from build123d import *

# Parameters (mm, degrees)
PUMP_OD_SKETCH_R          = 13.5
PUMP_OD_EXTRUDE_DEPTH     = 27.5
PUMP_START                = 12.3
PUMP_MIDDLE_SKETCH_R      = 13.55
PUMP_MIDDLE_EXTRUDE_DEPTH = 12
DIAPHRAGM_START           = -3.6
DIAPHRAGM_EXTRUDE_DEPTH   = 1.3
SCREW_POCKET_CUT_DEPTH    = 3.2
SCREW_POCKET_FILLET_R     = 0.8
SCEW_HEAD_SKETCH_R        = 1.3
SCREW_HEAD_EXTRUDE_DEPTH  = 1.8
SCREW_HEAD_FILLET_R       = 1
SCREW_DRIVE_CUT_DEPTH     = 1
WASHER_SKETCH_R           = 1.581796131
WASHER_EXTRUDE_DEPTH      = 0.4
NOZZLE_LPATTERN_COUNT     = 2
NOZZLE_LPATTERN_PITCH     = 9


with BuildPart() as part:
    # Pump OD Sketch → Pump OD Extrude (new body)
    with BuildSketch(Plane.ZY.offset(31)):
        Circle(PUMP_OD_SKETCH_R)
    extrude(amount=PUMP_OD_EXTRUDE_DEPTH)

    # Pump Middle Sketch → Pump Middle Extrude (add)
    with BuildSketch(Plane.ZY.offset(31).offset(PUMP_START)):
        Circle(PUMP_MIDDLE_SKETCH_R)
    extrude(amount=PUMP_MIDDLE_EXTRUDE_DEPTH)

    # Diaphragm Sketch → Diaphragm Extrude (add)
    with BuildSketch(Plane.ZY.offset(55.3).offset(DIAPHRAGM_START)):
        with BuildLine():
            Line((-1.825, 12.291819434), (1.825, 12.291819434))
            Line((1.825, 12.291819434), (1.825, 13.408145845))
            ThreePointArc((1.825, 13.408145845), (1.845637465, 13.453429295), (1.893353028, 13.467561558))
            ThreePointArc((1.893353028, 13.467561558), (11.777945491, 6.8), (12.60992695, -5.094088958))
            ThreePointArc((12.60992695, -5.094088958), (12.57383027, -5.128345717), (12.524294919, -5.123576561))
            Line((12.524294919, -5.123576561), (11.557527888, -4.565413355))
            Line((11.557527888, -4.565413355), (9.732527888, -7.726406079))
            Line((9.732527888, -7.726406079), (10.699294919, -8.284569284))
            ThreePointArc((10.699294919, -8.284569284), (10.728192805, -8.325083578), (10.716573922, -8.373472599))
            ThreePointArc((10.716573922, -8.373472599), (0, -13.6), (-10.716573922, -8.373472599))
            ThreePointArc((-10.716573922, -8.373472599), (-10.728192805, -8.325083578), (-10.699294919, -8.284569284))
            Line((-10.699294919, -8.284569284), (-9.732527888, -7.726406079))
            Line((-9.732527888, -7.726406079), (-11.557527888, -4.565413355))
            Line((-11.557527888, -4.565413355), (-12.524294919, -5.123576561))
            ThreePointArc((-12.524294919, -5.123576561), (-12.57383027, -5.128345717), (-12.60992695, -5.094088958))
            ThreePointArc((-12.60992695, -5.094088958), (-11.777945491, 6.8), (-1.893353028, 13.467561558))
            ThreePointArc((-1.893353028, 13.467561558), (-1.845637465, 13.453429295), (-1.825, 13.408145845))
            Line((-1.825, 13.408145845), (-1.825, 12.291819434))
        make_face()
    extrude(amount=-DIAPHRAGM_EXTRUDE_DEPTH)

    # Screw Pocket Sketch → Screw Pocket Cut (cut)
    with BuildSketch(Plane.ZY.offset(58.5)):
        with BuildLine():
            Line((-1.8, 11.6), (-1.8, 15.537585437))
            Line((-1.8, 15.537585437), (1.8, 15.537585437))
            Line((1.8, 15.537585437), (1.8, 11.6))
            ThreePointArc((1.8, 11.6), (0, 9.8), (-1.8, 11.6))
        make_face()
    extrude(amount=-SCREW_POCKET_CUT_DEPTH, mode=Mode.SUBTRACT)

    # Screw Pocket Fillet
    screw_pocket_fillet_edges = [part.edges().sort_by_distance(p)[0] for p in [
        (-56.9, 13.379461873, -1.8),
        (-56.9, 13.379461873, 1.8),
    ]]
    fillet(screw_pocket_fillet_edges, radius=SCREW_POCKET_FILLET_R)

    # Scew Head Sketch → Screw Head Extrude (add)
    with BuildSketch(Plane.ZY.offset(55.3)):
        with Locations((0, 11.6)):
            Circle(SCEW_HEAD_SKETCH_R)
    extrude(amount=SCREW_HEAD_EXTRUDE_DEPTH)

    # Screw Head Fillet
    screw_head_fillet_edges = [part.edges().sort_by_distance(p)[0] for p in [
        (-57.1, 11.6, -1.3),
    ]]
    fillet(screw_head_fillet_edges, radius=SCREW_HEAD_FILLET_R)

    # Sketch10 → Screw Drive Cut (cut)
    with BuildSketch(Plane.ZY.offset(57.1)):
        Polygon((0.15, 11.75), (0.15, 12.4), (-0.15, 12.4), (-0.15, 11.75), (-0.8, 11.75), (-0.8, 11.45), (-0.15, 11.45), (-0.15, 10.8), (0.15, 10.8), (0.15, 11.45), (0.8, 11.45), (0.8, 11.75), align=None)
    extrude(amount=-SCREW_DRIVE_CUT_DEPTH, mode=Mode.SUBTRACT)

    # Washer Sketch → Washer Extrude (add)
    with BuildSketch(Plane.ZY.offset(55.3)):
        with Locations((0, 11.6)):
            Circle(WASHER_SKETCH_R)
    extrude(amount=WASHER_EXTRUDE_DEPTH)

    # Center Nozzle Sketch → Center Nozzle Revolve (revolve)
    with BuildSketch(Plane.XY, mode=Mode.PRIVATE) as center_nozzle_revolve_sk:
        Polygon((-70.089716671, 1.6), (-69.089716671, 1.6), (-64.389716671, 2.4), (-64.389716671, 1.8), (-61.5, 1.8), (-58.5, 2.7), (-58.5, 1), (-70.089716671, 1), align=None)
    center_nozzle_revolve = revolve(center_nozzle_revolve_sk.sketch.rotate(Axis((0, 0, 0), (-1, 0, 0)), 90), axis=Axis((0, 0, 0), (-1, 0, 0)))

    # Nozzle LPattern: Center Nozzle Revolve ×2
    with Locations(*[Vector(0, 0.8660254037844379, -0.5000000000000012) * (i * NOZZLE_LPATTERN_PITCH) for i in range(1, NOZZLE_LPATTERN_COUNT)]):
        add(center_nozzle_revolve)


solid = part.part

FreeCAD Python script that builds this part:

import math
import FreeCAD as App
import Part
import Sketcher
from FreeCAD import Vector
Q = App.Units.Quantity


def edges_at(feature, points):
    """Names of the edges that pass closest to the given points."""
    edges = feature.Shape.Edges
    near = lambda p: min(range(len(edges)), key=lambda i: edges[i].distToShape(Part.Vertex(*p))[0])
    return sorted({f"Edge{near(p) + 1}" for p in points})


def add_polygon(sketch, points):
    """Adds a closed chain of lines whose ends are joined by coincident constraints."""
    first, n = sketch.GeometryCount, len(points)
    for a, b in zip(points, points[1:] + points[:1]):
        sketch.addGeometry(Part.LineSegment(App.Vector(*a, 0), App.Vector(*b, 0)), False)
    for i in range(n):
        sketch.addConstraint(Sketcher.Constraint("Coincident", first + i, 2, first + (i + 1) % n, 1))

doc = App.newDocument("Part")
body = doc.addObject("PartDesign::Body", "Body")

sketch1 = doc.addObject("Sketcher::SketchObject", "Sketch")
body.addObject(sketch1)
sketch1.AttachmentSupport = (doc.YZ_Plane, [""])
sketch1.MapMode = "FlatFace"
sketch1.AttachmentOffset = App.Placement(Vector(0, 0, -31), App.Rotation())
sketch1.addGeometry(Part.Circle(Vector(0, 0, 0), Vector(0, 0, 1), 13.5), False)
sketch1.addConstraint([
    Sketcher.Constraint("Coincident", 0, 3, -1, 1),
    Sketcher.Constraint("Diameter", 0, Q("27 mm")),
])
pad1 = doc.addObject("PartDesign::Pad", "Pad")
body.addObject(pad1)
pad1.Profile = sketch1
pad1.Length = 27.5
pad1.Reversed = True

sketch2 = doc.addObject("Sketcher::SketchObject", "Sketch001")
body.addObject(sketch2)
sketch2.AttachmentSupport = (doc.YZ_Plane, [""])
sketch2.MapMode = "FlatFace"
sketch2.AttachmentOffset = App.Placement(Vector(0, 0, -43.3), App.Rotation())
sketch2.addGeometry(Part.Circle(Vector(0, 0, 0), Vector(0, 0, 1), 13.55), False)
sketch2.addConstraint([
    Sketcher.Constraint("Coincident", 0, 3, -1, 1),
    Sketcher.Constraint("Diameter", 0, Q("27.1 mm")),
])
pad2 = doc.addObject("PartDesign::Pad", "Pad001")
body.addObject(pad2)
pad2.Profile = sketch2
pad2.Length = 12
pad2.Reversed = True

sketch3 = doc.addObject("Sketcher::SketchObject", "Sketch002")
body.addObject(sketch3)
sketch3.AttachmentSupport = (doc.YZ_Plane, [""])
sketch3.MapMode = "FlatFace"
sketch3.AttachmentOffset = App.Placement(Vector(0, 0, -51.7), App.Rotation())
sketch3.addGeometry([
    Part.LineSegment(Vector(12.291819, 1.825, 0), Vector(12.291819, -1.825, 0)),
    Part.LineSegment(Vector(12.291819, -1.825, 0), Vector(13.408146, -1.825, 0)),
    Part.ArcOfCircle(Part.Circle(Vector(13.408146, -1.885, 0), Vector(0, 0, 1), 0.06), math.radians(-8.002548), math.radians(90)),
    Part.ArcOfCircle(Part.Circle(Vector(0, 0, 0), Vector(0, 0, 1), 13.6), math.radians(-111.997452), math.radians(-8.002548)),
    Part.ArcOfCircle(Part.Circle(Vector(-5.071615, -12.554295, 0), Vector(0, 0, 1), 0.06), math.radians(150), math.radians(248.002549)),
    Part.LineSegment(Vector(-5.123577, -12.524295, 0), Vector(-4.565413, -11.557528, 0)),
    Part.LineSegment(Vector(-4.565413, -11.557528, 0), Vector(-7.726406, -9.732528, 0)),
    Part.LineSegment(Vector(-7.726406, -9.732528, 0), Vector(-8.284569, -10.699295, 0)),
    Part.ArcOfCircle(Part.Circle(Vector(-8.336531, -10.669295, 0), Vector(0, 0, 1), 0.06), math.radians(-128.002548), math.radians(-29.999999)),
    Part.ArcOfCircle(Part.Circle(Vector(0, 0, 0), Vector(0, 0, 1), 13.6), math.radians(128.002548), math.radians(231.997452)),
    Part.ArcOfCircle(Part.Circle(Vector(-8.336531, 10.669295, 0), Vector(0, 0, 1), 0.06), math.radians(29.999999), math.radians(128.002548)),
    Part.LineSegment(Vector(-8.284569, 10.699295, 0), Vector(-7.726406, 9.732528, 0)),
    Part.LineSegment(Vector(-7.726406, 9.732528, 0), Vector(-4.565413, 11.557528, 0)),
    Part.LineSegment(Vector(-4.565413, 11.557528, 0), Vector(-5.123577, 12.524295, 0)),
    Part.ArcOfCircle(Part.Circle(Vector(-5.071615, 12.554295, 0), Vector(0, 0, 1), 0.06), math.radians(111.997451), math.radians(210)),
    Part.ArcOfCircle(Part.Circle(Vector(0, 0, 0), Vector(0, 0, 1), 13.6), math.radians(8.002548), math.radians(111.997452)),
    Part.ArcOfCircle(Part.Circle(Vector(13.408146, 1.885, 0), Vector(0, 0, 1), 0.06), math.radians(-90), math.radians(8.002548)),
    Part.LineSegment(Vector(13.408146, 1.825, 0), Vector(12.291819, 1.825, 0)),
], False)
sketch3.addConstraint([
    Sketcher.Constraint("Coincident", 0, 2, 1, 1),
    Sketcher.Constraint("Tangent", 1, 2, 2, 2),
    Sketcher.Constraint("Tangent", 2, 1, 3, 2),
    Sketcher.Constraint("Tangent", 3, 1, 4, 2),
    Sketcher.Constraint("Tangent", 4, 1, 5, 1),
    Sketcher.Constraint("Coincident", 5, 2, 6, 1),
    Sketcher.Constraint("Coincident", 6, 2, 7, 1),
    Sketcher.Constraint("Tangent", 7, 2, 8, 2),
    Sketcher.Constraint("Tangent", 8, 1, 9, 2),
    Sketcher.Constraint("Tangent", 9, 1, 10, 2),
    Sketcher.Constraint("Tangent", 10, 1, 11, 1),
    Sketcher.Constraint("Coincident", 11, 2, 12, 1),
    Sketcher.Constraint("Coincident", 12, 2, 13, 1),
    Sketcher.Constraint("Tangent", 13, 2, 14, 2),
    Sketcher.Constraint("Tangent", 14, 1, 15, 2),
    Sketcher.Constraint("Tangent", 15, 1, 16, 2),
    Sketcher.Constraint("Tangent", 16, 1, 17, 1),
    Sketcher.Constraint("Coincident", 17, 2, 0, 1),
    Sketcher.Constraint("Vertical", 0),
    Sketcher.Constraint("Horizontal", 1),
    Sketcher.Constraint("Horizontal", 17),
    Sketcher.Constraint("Coincident", 3, 3, -1, 1),
    Sketcher.Constraint("Coincident", 9, 3, -1, 1),
    Sketcher.Constraint("Coincident", 15, 3, -1, 1),
    Sketcher.Constraint("Equal", 2, 4),
    Sketcher.Constraint("Equal", 4, 8),
    Sketcher.Constraint("Equal", 3, 9),
    Sketcher.Constraint("Equal", 8, 10),
    Sketcher.Constraint("Equal", 10, 14),
    Sketcher.Constraint("Equal", 9, 15),
    Sketcher.Constraint("Equal", 14, 16),
    Sketcher.Constraint("Symmetric", 7, 2, 10, 1, -1),
    Sketcher.Constraint("Symmetric", 5, 2, 12, 2, -1),
    Sketcher.Constraint("Perpendicular", 5, 6),
    Sketcher.Constraint("Perpendicular", 6, 7),
    Sketcher.Constraint("Perpendicular", 11, 12),
    Sketcher.Constraint("Perpendicular", 12, 13),
    Sketcher.Constraint("Vertical", 2, 3, 16, 3),
    Sketcher.Constraint("Equal", 5, 7),
    Sketcher.Constraint("Radius", 3, Q("13.6 mm")),
    Sketcher.Constraint("Angle", 5, Q("60 deg")),
    Sketcher.Constraint("Radius", 2, Q("0.06 mm")),
    Sketcher.Constraint("DistanceY", 0, 2, 0, 1, Q("3.65 mm")),
    Sketcher.Constraint("Distance", 6, Q("3.65 mm")),
    Sketcher.Constraint("DistanceX", 4, 3, 5, 2, Q("0.506202 mm")),
    Sketcher.Constraint("DistanceX", 1, 1, 1, 2, Q("1.116326 mm")),
])
pad3 = doc.addObject("PartDesign::Pad", "Pad002")
body.addObject(pad3)
pad3.Profile = sketch3
pad3.Length = 1.3

sketch4 = doc.addObject("Sketcher::SketchObject", "Sketch003")
body.addObject(sketch4)
sketch4.AttachmentSupport = (doc.YZ_Plane, [""])
sketch4.MapMode = "FlatFace"
sketch4.AttachmentOffset = App.Placement(Vector(0, 0, -58.5), App.Rotation())
sketch4.addGeometry([
    Part.LineSegment(Vector(15.537585, -1.8, 0), Vector(11.6, -1.8, 0)),
    Part.ArcOfCircle(Part.Circle(Vector(11.6, 0, 0), Vector(0, 0, 1), 1.8), math.radians(90), math.radians(270)),
    Part.LineSegment(Vector(11.6, 1.8, 0), Vector(15.537585, 1.8, 0)),
    Part.LineSegment(Vector(15.537585, 1.8, 0), Vector(15.537585, -1.8, 0)),
], False)
sketch4.addConstraint([
    Sketcher.Constraint("Tangent", 0, 2, 1, 2),
    Sketcher.Constraint("Tangent", 1, 1, 2, 1),
    Sketcher.Constraint("Coincident", 2, 2, 3, 1),
    Sketcher.Constraint("Coincident", 3, 2, 0, 1),
    Sketcher.Constraint("Horizontal", 0),
    Sketcher.Constraint("Horizontal", 2),
    Sketcher.Constraint("Vertical", 3),
    Sketcher.Constraint("PointOnObject", 1, 3, -1),
    Sketcher.Constraint("Radius", 1, Q("1.8 mm")),
    Sketcher.Constraint("DistanceX", -1, 1, 1, 3, Q("11.6 mm")),
    Sketcher.Constraint("DistanceX", 0, 2, 0, 1, Q("3.937585 mm")),
])
pocket1 = doc.addObject("PartDesign::Pocket", "Pocket")
body.addObject(pocket1)
pocket1.Profile = sketch4
pocket1.Length = 3.2
pocket1.Reversed = True
doc.recompute()

fillet = doc.addObject("PartDesign::Fillet", "Fillet")
body.addObject(fillet)
fillet.Base = (pocket1, edges_at(pocket1, [(-56.9, 13.379, -1.8), (-56.9, 13.379, 1.8)]))
fillet.Radius = 0.8

sketch5 = doc.addObject("Sketcher::SketchObject", "Sketch004")
body.addObject(sketch5)
sketch5.AttachmentSupport = (doc.YZ_Plane, [""])
sketch5.MapMode = "FlatFace"
sketch5.AttachmentOffset = App.Placement(Vector(0, 0, -55.3), App.Rotation())
sketch5.addGeometry(Part.Circle(Vector(11.6, 0, 0), Vector(0, 0, 1), 1.3), False)
sketch5.addConstraint([
    Sketcher.Constraint("PointOnObject", 0, 3, -1),
    Sketcher.Constraint("Diameter", 0, Q("2.6 mm")),
    Sketcher.Constraint("DistanceX", -1, 1, 0, 3, Q("11.6 mm")),
])
pad4 = doc.addObject("PartDesign::Pad", "Pad003")
body.addObject(pad4)
pad4.Profile = sketch5
pad4.Length = 1.8
pad4.Reversed = True
doc.recompute()

fillet2 = doc.addObject("PartDesign::Fillet", "Fillet001")
body.addObject(fillet2)
fillet2.Base = (pad4, edges_at(pad4, [(-57.1, 11.6, -1.3)]))
fillet2.Radius = 1

sketch6 = doc.addObject("Sketcher::SketchObject", "Sketch005")
body.addObject(sketch6)
sketch6.AttachmentSupport = (doc.YZ_Plane, [""])
sketch6.MapMode = "FlatFace"
sketch6.AttachmentOffset = App.Placement(Vector(0, 0, -57.1), App.Rotation())
add_polygon(sketch6, [(11.75, 0.15), (12.4, 0.15), (12.4, -0.15), (11.75, -0.15), (11.75, -0.8), (11.45, -0.8), (11.45, -0.15), (10.8, -0.15), (10.8, 0.15), (11.45, 0.15), (11.45, 0.8), (11.75, 0.8)])
sketch6.addConstraint([
    Sketcher.Constraint("Horizontal", 0),
    Sketcher.Constraint("Vertical", 1),
    Sketcher.Constraint("Horizontal", 2),
    Sketcher.Constraint("Vertical", 3),
    Sketcher.Constraint("Horizontal", 4),
    Sketcher.Constraint("Vertical", 5),
    Sketcher.Constraint("Horizontal", 6),
    Sketcher.Constraint("Vertical", 7),
    Sketcher.Constraint("Horizontal", 8),
    Sketcher.Constraint("Vertical", 9),
    Sketcher.Constraint("Horizontal", 10),
    Sketcher.Constraint("Vertical", 11),
    Sketcher.Constraint("Symmetric", 5, 2, 8, 2, -1),
    Sketcher.Constraint("Symmetric", 3, 2, 10, 2, -1),
    Sketcher.Constraint("Horizontal", 2, 2, 5, 2),
    Sketcher.Constraint("Horizontal", 0, 2, 7, 2),
    Sketcher.Constraint("Equal", 2, 6),
    Sketcher.Constraint("Equal", 10, 1),
    Sketcher.Constraint("Equal", 8, 3),
    Sketcher.Constraint("DistanceX", 4, 2, 4, 1, Q("0.3 mm")),
    Sketcher.Constraint("DistanceX", 0, 1, 0, 2, Q("0.65 mm")),
    Sketcher.Constraint("DistanceX", -1, 1, 0, 2, Q("12.4 mm")),
])
pocket2 = doc.addObject("PartDesign::Pocket", "Pocket001")
body.addObject(pocket2)
pocket2.Profile = sketch6
pocket2.Length = 1
pocket2.Reversed = True

sketch7 = doc.addObject("Sketcher::SketchObject", "Sketch006")
body.addObject(sketch7)
sketch7.AttachmentSupport = (doc.YZ_Plane, [""])
sketch7.MapMode = "FlatFace"
sketch7.AttachmentOffset = App.Placement(Vector(0, 0, -55.3), App.Rotation())
sketch7.addGeometry(Part.Circle(Vector(11.6, 0, 0), Vector(0, 0, 1), 1.581796), False)
sketch7.addConstraint([
    Sketcher.Constraint("PointOnObject", 0, 3, -1),
    Sketcher.Constraint("DistanceX", -1, 1, 0, 3, Q("11.6 mm")),
    Sketcher.Constraint("Diameter", 0, Q("3.163592 mm")),
])
pad5 = doc.addObject("PartDesign::Pad", "Pad004")
body.addObject(pad5)
pad5.Profile = sketch7
pad5.Length = 0.4
pad5.Reversed = True

sketch8 = doc.addObject("Sketcher::SketchObject", "Sketch007")
body.addObject(sketch8)
sketch8.AttachmentSupport = (doc.XY_Plane, [""])
sketch8.MapMode = "FlatFace"
add_polygon(sketch8, [(-69.089717, 1.6), (-70.089717, 1.6), (-70.089717, 1), (-58.5, 1), (-58.5, 2.7), (-61.5, 1.8), (-64.389717, 1.8), (-64.389717, 2.4)])
sketch8.addConstraint([
    Sketcher.Constraint("Horizontal", 0),
    Sketcher.Constraint("Vertical", 1),
    Sketcher.Constraint("Horizontal", 2),
    Sketcher.Constraint("Vertical", 3),
    Sketcher.Constraint("Horizontal", 5),
    Sketcher.Constraint("Vertical", 6),
    Sketcher.Constraint("Equal", 1, 6),
    Sketcher.Constraint("DistanceX", 0, 2, 0, 1, Q("1 mm")),
    Sketcher.Constraint("DistanceY", 1, 2, 1, 1, Q("0.6 mm")),
    Sketcher.Constraint("DistanceY", 3, 1, 3, 2, Q("1.7 mm")),
    Sketcher.Constraint("DistanceY", -1, 1, 1, 2, Q("1 mm")),
    Sketcher.Constraint("DistanceX", 4, 2, 2, 2, Q("3 mm")),
    Sketcher.Constraint("DistanceX", 2, 2, -1, 1, Q("58.5 mm")),
    Sketcher.Constraint("DistanceY", -1, 1, 4, 2, Q("1.8 mm")),
    Sketcher.Constraint("DistanceX", 0, 2, 5, 2, Q("5.7 mm")),
    Sketcher.Constraint("DistanceX", 2, 1, 2, 2, Q("11.589717 mm")),
])
revolution = doc.addObject("PartDesign::Revolution", "Revolution")
body.addObject(revolution)
revolution.Profile = sketch8
revolution.ReferenceAxis = (sketch8, ["H_Axis"])
revolution.Angle = 360
doc.recompute()

datumline = doc.addObject("PartDesign::Line", "DatumLine")
body.addObject(datumline)
datumline.Placement = App.Placement(Vector(0, 0, 0), App.Rotation(Vector(0, 0, 1), Vector(0, 0.866025404, -0.5)))
linearpattern = doc.addObject("PartDesign::LinearPattern", "LinearPattern")
body.addObject(linearpattern)
linearpattern.Originals = [revolution]
linearpattern.Direction = (datumline, [""])
linearpattern.Mode = "offset"
linearpattern.Offset = 9
linearpattern.Occurrences = 2
body.Tip = linearpattern

doc.recompute()
